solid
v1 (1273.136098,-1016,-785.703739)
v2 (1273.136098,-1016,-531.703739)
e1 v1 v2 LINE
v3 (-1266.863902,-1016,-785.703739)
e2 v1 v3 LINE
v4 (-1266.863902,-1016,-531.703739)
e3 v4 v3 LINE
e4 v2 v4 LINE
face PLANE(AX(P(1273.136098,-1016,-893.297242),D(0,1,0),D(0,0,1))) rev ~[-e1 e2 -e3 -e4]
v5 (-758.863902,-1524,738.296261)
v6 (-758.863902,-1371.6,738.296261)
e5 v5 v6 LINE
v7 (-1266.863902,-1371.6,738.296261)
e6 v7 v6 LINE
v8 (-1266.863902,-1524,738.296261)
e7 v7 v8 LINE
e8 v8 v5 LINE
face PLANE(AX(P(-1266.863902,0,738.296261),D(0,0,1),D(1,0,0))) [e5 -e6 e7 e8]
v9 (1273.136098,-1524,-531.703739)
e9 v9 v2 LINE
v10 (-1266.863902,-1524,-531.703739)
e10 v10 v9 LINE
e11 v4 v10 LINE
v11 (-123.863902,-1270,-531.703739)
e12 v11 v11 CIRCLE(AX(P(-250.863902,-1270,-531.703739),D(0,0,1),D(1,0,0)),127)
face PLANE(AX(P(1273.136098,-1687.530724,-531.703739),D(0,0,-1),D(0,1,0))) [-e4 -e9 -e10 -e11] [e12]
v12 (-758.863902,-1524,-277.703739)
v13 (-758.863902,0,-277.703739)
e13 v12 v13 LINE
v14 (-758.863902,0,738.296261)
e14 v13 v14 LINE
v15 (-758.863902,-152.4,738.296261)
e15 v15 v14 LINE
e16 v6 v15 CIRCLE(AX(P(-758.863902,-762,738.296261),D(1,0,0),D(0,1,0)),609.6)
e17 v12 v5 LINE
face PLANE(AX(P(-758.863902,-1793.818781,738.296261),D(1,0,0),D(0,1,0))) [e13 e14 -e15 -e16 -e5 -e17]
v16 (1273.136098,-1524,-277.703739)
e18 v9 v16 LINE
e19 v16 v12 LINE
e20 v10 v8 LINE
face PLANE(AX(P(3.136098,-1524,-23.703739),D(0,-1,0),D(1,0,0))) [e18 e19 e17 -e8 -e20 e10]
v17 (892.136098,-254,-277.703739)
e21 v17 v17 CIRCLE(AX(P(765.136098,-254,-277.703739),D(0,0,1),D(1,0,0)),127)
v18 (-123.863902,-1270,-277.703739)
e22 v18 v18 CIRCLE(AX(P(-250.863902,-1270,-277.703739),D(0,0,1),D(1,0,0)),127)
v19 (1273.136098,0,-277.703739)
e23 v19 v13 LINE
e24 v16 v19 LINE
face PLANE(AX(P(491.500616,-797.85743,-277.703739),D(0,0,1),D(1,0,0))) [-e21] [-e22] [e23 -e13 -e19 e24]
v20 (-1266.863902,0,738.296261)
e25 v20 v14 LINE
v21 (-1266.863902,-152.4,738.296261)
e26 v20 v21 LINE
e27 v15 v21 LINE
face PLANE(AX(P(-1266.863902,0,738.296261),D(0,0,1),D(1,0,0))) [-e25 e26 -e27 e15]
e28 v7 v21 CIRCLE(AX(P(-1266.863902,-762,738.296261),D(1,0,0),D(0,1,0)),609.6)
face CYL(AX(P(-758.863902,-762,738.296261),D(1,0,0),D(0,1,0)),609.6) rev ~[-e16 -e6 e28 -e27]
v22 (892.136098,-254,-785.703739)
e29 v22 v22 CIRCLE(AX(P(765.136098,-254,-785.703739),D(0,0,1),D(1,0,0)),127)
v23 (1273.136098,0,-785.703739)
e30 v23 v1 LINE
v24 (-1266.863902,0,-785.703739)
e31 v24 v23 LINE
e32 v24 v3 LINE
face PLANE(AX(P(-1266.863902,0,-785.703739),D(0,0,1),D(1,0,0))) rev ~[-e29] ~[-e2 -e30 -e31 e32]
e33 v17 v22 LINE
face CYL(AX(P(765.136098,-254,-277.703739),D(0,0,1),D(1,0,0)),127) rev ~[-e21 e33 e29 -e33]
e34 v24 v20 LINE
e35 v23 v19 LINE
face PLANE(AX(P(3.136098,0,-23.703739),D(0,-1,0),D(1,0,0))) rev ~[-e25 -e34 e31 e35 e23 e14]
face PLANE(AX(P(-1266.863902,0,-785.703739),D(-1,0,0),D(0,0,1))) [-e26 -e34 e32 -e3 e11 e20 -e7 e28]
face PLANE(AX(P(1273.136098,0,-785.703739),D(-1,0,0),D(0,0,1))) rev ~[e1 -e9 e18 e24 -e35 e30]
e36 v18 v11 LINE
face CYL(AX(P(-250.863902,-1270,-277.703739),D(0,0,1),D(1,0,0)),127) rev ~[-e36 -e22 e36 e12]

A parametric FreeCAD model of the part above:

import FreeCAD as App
import Part
import Sketcher
Q = App.Units.Quantity


def add_polygon(sketch, points):
    """Adds a closed chain of lines whose ends are joined by coincident constraints."""
    first, n = sketch.GeometryCount, len(points)
    for a, b in zip(points, points[1:] + points[:1]):
        sketch.addGeometry(Part.LineSegment(App.Vector(*a, 0), App.Vector(*b, 0)), False)
    for i in range(n):
        sketch.addConstraint(Sketcher.Constraint("Coincident", first + i, 2, first + (i + 1) % n, 1))

doc = App.newDocument("Part")
body = doc.addObject("PartDesign::Body", "Body")

sketch1 = doc.addObject("Sketcher::SketchObject", "Sketch")
body.addObject(sketch1)
sketch1.AttachmentSupport = (doc.XZ_Plane, [""])
sketch1.MapMode = "FlatFace"
add_polygon(sketch1, [(-1266.863902, 738.296261), (-1266.863902, -785.703739), (1273.136098, -785.703739), (1273.136098, 738.296261)])
sketch1.addConstraint([
    Sketcher.Constraint("Vertical", 0),
    Sketcher.Constraint("Horizontal", 1),
    Sketcher.Constraint("Vertical", 2),
    Sketcher.Constraint("Horizontal", 3),
    Sketcher.Constraint("DistanceX", 1, 1, 1, 2, Q("100 in")),
    Sketcher.Constraint("DistanceY", 0, 2, 0, 1, Q("60 in")),
    Sketcher.Constraint("DistanceX", 0, 2, -1, 1, 1266.863902),
    Sketcher.Constraint("DistanceY", 0, 2, -1, 1, 785.703739),
])
pad1 = doc.addObject("PartDesign::Pad", "Pad")
body.addObject(pad1)
pad1.Profile = sketch1
pad1.Length = Q("60 in")

sketch2 = doc.addObject("Sketcher::SketchObject", "Sketch001")
body.addObject(sketch2)
sketch2.AttachmentSupport = (doc.XY_Plane, [""])
sketch2.MapMode = "FlatFace"
sketch2.AttachmentOffset = App.Placement(App.Vector(0, 0, 738.296261), App.Rotation())
add_polygon(sketch2, [(-758.863902, 198.103922), (-758.863902, -1793.818781), (1741.865133, -1793.818781), (1741.865133, 198.103922)])
sketch2.addConstraint([
    Sketcher.Constraint("Vertical", 0),
    Sketcher.Constraint("Horizontal", 1),
    Sketcher.Constraint("Vertical", 2),
    Sketcher.Constraint("Horizontal", 3),
    Sketcher.Constraint("DistanceX", 0, 2, -1, 1, 758.863902),
    Sketcher.Constraint("DistanceX", 1, 1, 1, 2, 2500.729035),
    Sketcher.Constraint("DistanceY", 0, 2, 0, 1, 1991.922703),
    Sketcher.Constraint("DistanceY", 0, 2, -1, 1, 1793.818781),
])
pocket1 = doc.addObject("PartDesign::Pocket", "Pocket")
body.addObject(pocket1)
pocket1.Profile = sketch2
pocket1.Length = Q("40 in")

sketch3 = doc.addObject("Sketcher::SketchObject", "Sketch002")
body.addObject(sketch3)
sketch3.AttachmentSupport = (doc.YZ_Plane, [""])
sketch3.MapMode = "FlatFace"
sketch3.AttachmentOffset = App.Placement(App.Vector(0, 0, 1273.136098), App.Rotation())
add_polygon(sketch3, [(-1687.530724, -531.703739), (-1687.530724, -893.297242), (-1016, -893.297242), (-1016, -531.703739)])
sketch3.addConstraint([
    Sketcher.Constraint("Vertical", 0),
    Sketcher.Constraint("Horizontal", 1),
    Sketcher.Constraint("Vertical", 2),
    Sketcher.Constraint("Horizontal", 3),
    Sketcher.Constraint("DistanceX", 1, 2, -1, 1, Q("40 in")),
    Sketcher.Constraint("DistanceX", 1, 1, 1, 2, 671.530724),
    Sketcher.Constraint("DistanceY", 0, 2, 0, 1, 361.593503),
    Sketcher.Constraint("DistanceY", 2, 2, -1, 1, 531.703739),
])
pocket2 = doc.addObject("PartDesign::Pocket", "Pocket001")
body.addObject(pocket2)
pocket2.Profile = sketch3
pocket2.Type = "ThroughAll"

sketch4 = doc.addObject("Sketcher::SketchObject", "Sketch003")
body.addObject(sketch4)
sketch4.AttachmentSupport = (doc.YZ_Plane, [""])
sketch4.MapMode = "FlatFace"
sketch4.AttachmentOffset = App.Placement(App.Vector(0, 0, -758.863902), App.Rotation())
sketch4.addGeometry(Part.Circle(App.Vector(-762, 738.296261, 0), App.Vector(0, 0, 1), 609.6), False)
sketch4.addConstraint([
    Sketcher.Constraint("Diameter", 0, Q("48 in")),
    Sketcher.Constraint("DistanceX", 0, 3, -1, 1, Q("30 in")),
    Sketcher.Constraint("DistanceY", -1, 1, 0, 3, 738.296261),
])
pocket3 = doc.addObject("PartDesign::Pocket", "Pocket002")
body.addObject(pocket3)
pocket3.Profile = sketch4
pocket3.Type = "ThroughAll"

sketch5 = doc.addObject("Sketcher::SketchObject", "Sketch004")
body.addObject(sketch5)
sketch5.AttachmentSupport = (doc.XY_Plane, [""])
sketch5.MapMode = "FlatFace"
sketch5.AttachmentOffset = App.Placement(App.Vector(0, 0, -277.703739), App.Rotation())
sketch5.addGeometry(Part.Circle(App.Vector(765.136098, -254, 0), App.Vector(0, 0, 1), 127), False)
sketch5.addConstraint([
    Sketcher.Constraint("Diameter", 0, Q("10 in")),
    Sketcher.Constraint("DistanceY", 0, 3, -1, 1, Q("10 in")),
    Sketcher.Constraint("DistanceX", -1, 1, 0, 3, 765.136098),
])
pocket4 = doc.addObject("PartDesign::Pocket", "Pocket003")
body.addObject(pocket4)
pocket4.Profile = sketch5
pocket4.Type = "ThroughAll"

sketch6 = doc.addObject("Sketcher::SketchObject", "Sketch005")
body.addObject(sketch6)
sketch6.AttachmentSupport = (doc.XY_Plane, [""])
sketch6.MapMode = "FlatFace"
sketch6.AttachmentOffset = App.Placement(App.Vector(0, 0, -277.703739), App.Rotation())
sketch6.addGeometry(Part.Circle(App.Vector(-250.863902, -1270, 0), App.Vector(0, 0, 1), 127), False)
sketch6.addConstraint([
    Sketcher.Constraint("Diameter", 0, Q("10 in")),
    Sketcher.Constraint("DistanceY", 0, 3, -1, 1, Q("50 in")),
    Sketcher.Constraint("DistanceX", 0, 3, -1, 1, 250.863902),
])
pocket5 = doc.addObject("PartDesign::Pocket", "Pocket004")
body.addObject(pocket5)
pocket5.Profile = sketch6
pocket5.Type = "ThroughAll"

doc.recompute()
